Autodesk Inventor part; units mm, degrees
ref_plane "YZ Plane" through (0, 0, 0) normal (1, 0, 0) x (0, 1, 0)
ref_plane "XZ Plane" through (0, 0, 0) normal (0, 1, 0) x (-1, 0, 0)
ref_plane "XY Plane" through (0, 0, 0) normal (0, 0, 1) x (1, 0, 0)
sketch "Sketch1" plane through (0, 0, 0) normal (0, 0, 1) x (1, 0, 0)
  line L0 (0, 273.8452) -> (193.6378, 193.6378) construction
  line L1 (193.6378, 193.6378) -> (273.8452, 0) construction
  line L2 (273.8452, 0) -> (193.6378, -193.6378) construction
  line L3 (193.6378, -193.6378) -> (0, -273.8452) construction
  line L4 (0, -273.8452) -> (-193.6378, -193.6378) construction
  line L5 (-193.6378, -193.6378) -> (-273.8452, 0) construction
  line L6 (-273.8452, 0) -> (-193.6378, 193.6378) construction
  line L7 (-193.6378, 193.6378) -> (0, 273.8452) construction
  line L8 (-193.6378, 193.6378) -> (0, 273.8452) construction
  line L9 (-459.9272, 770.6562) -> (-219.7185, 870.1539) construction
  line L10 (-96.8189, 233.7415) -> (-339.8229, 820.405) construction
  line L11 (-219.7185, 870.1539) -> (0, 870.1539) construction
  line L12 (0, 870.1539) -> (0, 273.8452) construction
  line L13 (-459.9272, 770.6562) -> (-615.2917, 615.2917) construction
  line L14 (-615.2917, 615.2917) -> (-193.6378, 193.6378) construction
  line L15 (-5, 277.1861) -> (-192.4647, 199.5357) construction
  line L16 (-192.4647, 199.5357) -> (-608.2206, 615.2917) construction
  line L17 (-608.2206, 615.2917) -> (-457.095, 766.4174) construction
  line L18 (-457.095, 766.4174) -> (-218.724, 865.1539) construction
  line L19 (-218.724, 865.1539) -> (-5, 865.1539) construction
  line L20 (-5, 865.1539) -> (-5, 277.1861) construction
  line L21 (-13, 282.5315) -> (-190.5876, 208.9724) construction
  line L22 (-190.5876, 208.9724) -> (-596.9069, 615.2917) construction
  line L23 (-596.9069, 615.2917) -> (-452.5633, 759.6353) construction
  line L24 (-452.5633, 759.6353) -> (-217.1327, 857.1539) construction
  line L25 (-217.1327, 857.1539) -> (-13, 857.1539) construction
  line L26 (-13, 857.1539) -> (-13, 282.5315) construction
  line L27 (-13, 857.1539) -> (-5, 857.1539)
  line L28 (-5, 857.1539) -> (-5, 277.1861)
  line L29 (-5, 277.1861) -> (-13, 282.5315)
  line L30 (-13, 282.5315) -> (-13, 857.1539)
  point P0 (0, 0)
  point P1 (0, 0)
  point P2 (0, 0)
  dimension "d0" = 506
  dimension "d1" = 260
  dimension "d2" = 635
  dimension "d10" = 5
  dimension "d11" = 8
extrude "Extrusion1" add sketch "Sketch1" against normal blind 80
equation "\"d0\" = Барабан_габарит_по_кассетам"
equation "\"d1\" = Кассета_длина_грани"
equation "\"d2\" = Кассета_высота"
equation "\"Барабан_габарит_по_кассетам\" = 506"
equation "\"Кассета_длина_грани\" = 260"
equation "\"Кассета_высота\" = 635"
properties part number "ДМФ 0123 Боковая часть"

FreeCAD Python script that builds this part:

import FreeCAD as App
import Part
import Sketcher
Q = App.Units.Quantity

doc = App.newDocument("Part")
params = doc.addObject("Spreadsheet::Sheet", "Params")
for row, (alias, value) in enumerate([
    ("sketch1_width", "8 mm"),
    ("pad1_length", "80 mm"),
], start=1):
    params.set(f"A{row}", alias)
    params.set(f"B{row}", "=" + value)
    params.setAlias(f"B{row}", alias)

body = doc.addObject("PartDesign::Body", "Body")

# Sketch on XY plane
sketch1 = body.newObject("Sketcher::SketchObject", "Sketch")
sketch1.AttachmentSupport = (doc.getObject("XY_Plane"), [""])
sketch1.MapMode = "FlatFace"
sketch1.addGeometry([
    Part.LineSegment(App.Vector(-5, 857.1539, 0), App.Vector(-13, 857.1539, 0)),
    Part.LineSegment(App.Vector(-13, 857.1539, 0), App.Vector(-13, 282.5315, 0)),
    Part.LineSegment(App.Vector(-13, 282.5315, 0), App.Vector(-5, 277.1861, 0)),
    Part.LineSegment(App.Vector(-5, 277.1861, 0), App.Vector(-5, 857.1539, 0)),
], False)
sketch1.addConstraint([
    Sketcher.Constraint("Coincident", 0, 2, 1, 1),
    Sketcher.Constraint("Coincident", 1, 2, 2, 1),
    Sketcher.Constraint("Coincident", 2, 2, 3, 1),
    Sketcher.Constraint("Coincident", 3, 2, 0, 1),
    Sketcher.Constraint("Horizontal", 0),
    Sketcher.Constraint("Vertical", 1),
    Sketcher.Constraint("Vertical", 3),
    Sketcher.Constraint("DistanceX", 0, 2, 0, 1, 8.0),
    Sketcher.Constraint("DistanceX", 2, 2, -1, 1, 5.0),
    Sketcher.Constraint("Angle", 2, Q("-33.7499 deg")),
    Sketcher.Constraint("DistanceY", 1, 2, 1, 1, 574.6224),
    Sketcher.Constraint("DistanceY", -1, 1, 0, 2, 857.154),
])
sketch1.setExpression("Constraints[7]", "Params.sketch1_width")
pad1 = body.newObject("PartDesign::Pad", "Pad")
pad1.Profile = sketch1
pad1.setExpression("Length", "Params.pad1_length")
pad1.Reversed = True

doc.recompute()
